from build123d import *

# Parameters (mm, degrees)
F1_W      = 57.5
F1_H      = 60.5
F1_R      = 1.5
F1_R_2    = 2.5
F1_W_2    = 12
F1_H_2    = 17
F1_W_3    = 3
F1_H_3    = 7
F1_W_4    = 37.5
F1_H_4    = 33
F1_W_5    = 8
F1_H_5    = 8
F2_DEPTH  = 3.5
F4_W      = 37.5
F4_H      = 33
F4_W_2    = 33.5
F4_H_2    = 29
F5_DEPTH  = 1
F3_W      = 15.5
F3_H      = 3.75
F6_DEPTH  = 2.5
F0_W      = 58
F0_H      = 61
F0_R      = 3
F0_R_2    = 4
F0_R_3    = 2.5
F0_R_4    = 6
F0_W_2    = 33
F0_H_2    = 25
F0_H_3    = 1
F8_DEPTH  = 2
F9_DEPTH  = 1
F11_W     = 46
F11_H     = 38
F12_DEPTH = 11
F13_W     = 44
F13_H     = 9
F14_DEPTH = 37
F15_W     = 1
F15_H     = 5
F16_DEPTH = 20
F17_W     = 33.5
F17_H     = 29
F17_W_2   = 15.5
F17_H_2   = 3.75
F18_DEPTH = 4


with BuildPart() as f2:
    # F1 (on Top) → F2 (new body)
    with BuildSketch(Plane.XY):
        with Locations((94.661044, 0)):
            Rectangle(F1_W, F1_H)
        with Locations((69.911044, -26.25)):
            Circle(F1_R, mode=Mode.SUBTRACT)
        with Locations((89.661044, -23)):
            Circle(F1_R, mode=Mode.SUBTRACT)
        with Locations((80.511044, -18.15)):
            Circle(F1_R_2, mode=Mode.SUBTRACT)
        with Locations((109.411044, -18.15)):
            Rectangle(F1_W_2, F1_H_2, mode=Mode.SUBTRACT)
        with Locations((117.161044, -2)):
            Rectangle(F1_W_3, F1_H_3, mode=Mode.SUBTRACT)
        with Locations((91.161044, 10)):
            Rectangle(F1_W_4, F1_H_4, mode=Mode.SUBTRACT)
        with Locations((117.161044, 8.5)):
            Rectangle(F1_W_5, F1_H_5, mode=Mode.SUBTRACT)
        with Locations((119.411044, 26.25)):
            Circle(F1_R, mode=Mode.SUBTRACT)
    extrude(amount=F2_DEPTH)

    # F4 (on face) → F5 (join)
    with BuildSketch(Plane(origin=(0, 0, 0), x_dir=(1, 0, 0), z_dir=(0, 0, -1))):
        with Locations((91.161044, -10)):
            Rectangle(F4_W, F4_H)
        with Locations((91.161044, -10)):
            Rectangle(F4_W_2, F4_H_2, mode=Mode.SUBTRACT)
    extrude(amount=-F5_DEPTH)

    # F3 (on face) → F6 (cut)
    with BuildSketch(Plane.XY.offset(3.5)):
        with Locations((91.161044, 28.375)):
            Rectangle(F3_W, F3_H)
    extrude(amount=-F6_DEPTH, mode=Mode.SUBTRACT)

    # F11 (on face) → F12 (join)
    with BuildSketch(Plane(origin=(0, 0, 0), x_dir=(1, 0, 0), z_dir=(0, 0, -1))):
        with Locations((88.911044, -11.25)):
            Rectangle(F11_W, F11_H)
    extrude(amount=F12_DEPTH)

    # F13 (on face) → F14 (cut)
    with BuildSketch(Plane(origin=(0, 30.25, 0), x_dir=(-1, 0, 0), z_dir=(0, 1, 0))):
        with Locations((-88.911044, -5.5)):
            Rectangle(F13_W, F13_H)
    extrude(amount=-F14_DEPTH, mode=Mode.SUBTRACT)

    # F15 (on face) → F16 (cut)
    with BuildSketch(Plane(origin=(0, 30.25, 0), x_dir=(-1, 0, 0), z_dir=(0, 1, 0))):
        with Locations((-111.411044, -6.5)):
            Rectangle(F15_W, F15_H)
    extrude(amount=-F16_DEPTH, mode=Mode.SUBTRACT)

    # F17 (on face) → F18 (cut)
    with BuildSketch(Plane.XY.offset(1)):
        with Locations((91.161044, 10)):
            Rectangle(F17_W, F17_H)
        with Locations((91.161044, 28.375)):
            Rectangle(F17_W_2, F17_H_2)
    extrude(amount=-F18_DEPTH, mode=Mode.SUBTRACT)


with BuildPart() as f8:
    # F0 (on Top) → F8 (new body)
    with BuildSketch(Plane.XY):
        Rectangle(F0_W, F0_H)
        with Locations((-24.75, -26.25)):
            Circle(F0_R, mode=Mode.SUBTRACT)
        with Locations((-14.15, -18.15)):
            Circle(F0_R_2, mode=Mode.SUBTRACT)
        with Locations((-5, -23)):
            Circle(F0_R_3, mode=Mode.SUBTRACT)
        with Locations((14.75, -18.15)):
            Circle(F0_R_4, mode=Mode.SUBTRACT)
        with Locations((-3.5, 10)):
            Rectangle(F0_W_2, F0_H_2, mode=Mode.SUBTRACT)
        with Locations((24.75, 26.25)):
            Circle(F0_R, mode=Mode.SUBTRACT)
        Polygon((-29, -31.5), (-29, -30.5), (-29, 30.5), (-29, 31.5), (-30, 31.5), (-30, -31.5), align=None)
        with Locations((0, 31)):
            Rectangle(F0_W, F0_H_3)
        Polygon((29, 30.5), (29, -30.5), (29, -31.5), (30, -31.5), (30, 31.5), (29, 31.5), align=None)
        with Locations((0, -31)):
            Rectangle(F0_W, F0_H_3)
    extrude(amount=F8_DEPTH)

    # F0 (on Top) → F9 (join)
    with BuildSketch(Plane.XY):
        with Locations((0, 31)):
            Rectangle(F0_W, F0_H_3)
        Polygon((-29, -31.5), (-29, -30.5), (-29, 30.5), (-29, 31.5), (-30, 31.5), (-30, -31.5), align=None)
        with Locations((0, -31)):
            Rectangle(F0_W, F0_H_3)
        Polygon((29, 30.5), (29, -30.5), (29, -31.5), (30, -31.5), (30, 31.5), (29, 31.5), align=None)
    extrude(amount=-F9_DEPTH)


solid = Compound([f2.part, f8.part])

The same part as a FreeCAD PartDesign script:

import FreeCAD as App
import Part
import Sketcher
Q = App.Units.Quantity

doc = App.newDocument("Part")
body = doc.addObject("PartDesign::Body", "Body")

# Sketch on XY plane
sketch1 = body.newObject("Sketcher::SketchObject", "Sketch")
sketch1.AttachmentSupport = (doc.getObject("XY_Plane"), [""])
sketch1.MapMode = "FlatFace"
sketch1.addGeometry([
    Part.LineSegment(App.Vector(65.9, 30.2, 0), App.Vector(65.9, -30.2, 0)),  # 0
    Part.LineSegment(App.Vector(65.9, -30.2, 0), App.Vector(123.4, -30.2, 0)),  # 1
    Part.LineSegment(App.Vector(123.4, -30.2, 0), App.Vector(123.4, 30.2, 0)),  # 2
    Part.LineSegment(App.Vector(123.4, 30.2, 0), App.Vector(65.9, 30.2, 0)),  # 3
    Part.Circle(App.Vector(69.9, -26.2, 0), App.Vector(0, 0, 1), 1.5),  # 4
    Part.Circle(App.Vector(80.5, -18.1, 0), App.Vector(0, 0, 1), 2.5),  # 5
    Part.Circle(App.Vector(89.7, -23, 0), App.Vector(0, 0, 1), 1.5),  # 6
    Part.LineSegment(App.Vector(115.4, -26.6, 0), App.Vector(103.4, -26.6, 0)),  # 7
    Part.LineSegment(App.Vector(103.4, -26.6, 0), App.Vector(103.4, -9.7, 0)),  # 8
    Part.LineSegment(App.Vector(103.4, -9.7, 0), App.Vector(115.4, -9.7, 0)),  # 9
    Part.LineSegment(App.Vector(115.4, -9.7, 0), App.Vector(115.4, -26.6, 0)),  # 10
    Part.LineSegment(App.Vector(118.7, -5.5, 0), App.Vector(115.7, -5.5, 0)),  # 11
    Part.LineSegment(App.Vector(115.7, -5.5, 0), App.Vector(115.7, 1.5, 0)),  # 12
    Part.LineSegment(App.Vector(115.7, 1.5, 0), App.Vector(118.7, 1.5, 0)),  # 13
    Part.LineSegment(App.Vector(118.7, 1.5, 0), App.Vector(118.7, -5.5, 0)),  # 14
    Part.LineSegment(App.Vector(109.9, -6.5, 0), App.Vector(72.4, -6.5, 0)),  # 15
    Part.LineSegment(App.Vector(72.4, -6.5, 0), App.Vector(72.4, 26.5, 0)),  # 16
    Part.LineSegment(App.Vector(72.4, 26.5, 0), App.Vector(109.9, 26.5, 0)),  # 17
    Part.LineSegment(App.Vector(109.9, 26.5, 0), App.Vector(109.9, -6.5, 0)),  # 18
    Part.LineSegment(App.Vector(121.2, 4.5, 0), App.Vector(113.2, 4.5, 0)),  # 19
    Part.LineSegment(App.Vector(113.2, 4.5, 0), App.Vector(113.2, 12.5, 0)),  # 20
    Part.LineSegment(App.Vector(113.2, 12.5, 0), App.Vector(121.2, 12.5, 0)),  # 21
    Part.LineSegment(App.Vector(121.2, 12.5, 0), App.Vector(121.2, 4.5, 0)),  # 22
    Part.Circle(App.Vector(119.4, 26.2, 0), App.Vector(0, 0, 1), 1.5),  # 23
], False)
sketch1.addConstraint([
    Sketcher.Constraint("Coincident", 0, 2, 1, 1),
    Sketcher.Constraint("Coincident", 1, 2, 2, 1),
    Sketcher.Constraint("Coincident", 2, 2, 3, 1),
    Sketcher.Constraint("Coincident", 3, 2, 0, 1),
    Sketcher.Constraint("Coincident", 7, 2, 8, 1),
    Sketcher.Constraint("Coincident", 8, 2, 9, 1),
    Sketcher.Constraint("Coincident", 9, 2, 10, 1),
    Sketcher.Constraint("Coincident", 10, 2, 7, 1),
    Sketcher.Constraint("Coincident", 11, 2, 12, 1),
    Sketcher.Constraint("Coincident", 12, 2, 13, 1),
    Sketcher.Constraint("Coincident", 13, 2, 14, 1),
    Sketcher.Constraint("Coincident", 14, 2, 11, 1),
    Sketcher.Constraint("Coincident", 15, 2, 16, 1),
    Sketcher.Constraint("Coincident", 16, 2, 17, 1),
    Sketcher.Constraint("Coincident", 17, 2, 18, 1),
    Sketcher.Constraint("Coincident", 18, 2, 15, 1),
    Sketcher.Constraint("Coincident", 19, 2, 20, 1),
    Sketcher.Constraint("Coincident", 20, 2, 21, 1),
    Sketcher.Constraint("Coincident", 21, 2, 22, 1),
    Sketcher.Constraint("Coincident", 22, 2, 19, 1),
    Sketcher.Constraint("Vertical", 0),
    Sketcher.Constraint("Horizontal", 1),
    Sketcher.Constraint("Vertical", 2),
    Sketcher.Constraint("Horizontal", 3),
    Sketcher.Constraint("Horizontal", 7),
    Sketcher.Constraint("Vertical", 8),
    Sketcher.Constraint("Horizontal", 9),
    Sketcher.Constraint("Vertical", 10),
    Sketcher.Constraint("Horizontal", 11),
    Sketcher.Constraint("Vertical", 12),
    Sketcher.Constraint("Horizontal", 13),
    Sketcher.Constraint("Vertical", 14),
    Sketcher.Constraint("Horizontal", 15),
    Sketcher.Constraint("Vertical", 16),
    Sketcher.Constraint("Horizontal", 17),
    Sketcher.Constraint("Vertical", 18),
    Sketcher.Constraint("Horizontal", 19),
    Sketcher.Constraint("Vertical", 20),
    Sketcher.Constraint("Horizontal", 21),
    Sketcher.Constraint("Vertical", 22),
    Sketcher.Constraint("Equal", 4, 6),
    Sketcher.Constraint("Equal", 6, 23),
    Sketcher.Constraint("Equal", 21, 20),
    Sketcher.Constraint("Diameter", 4, Q("3 mm")),
    Sketcher.Constraint("Diameter", 5, Q("5 mm")),
    Sketcher.Constraint("DistanceX", 7, 2, 7, 1, Q("12 mm")),
    Sketcher.Constraint("DistanceX", 11, 2, 11, 1, Q("3 mm")),
    Sketcher.Constraint("DistanceX", 19, 2, 19, 1, Q("8 mm")),
    Sketcher.Constraint("DistanceY", 8, 1, 8, 2, Q("17 mm")),
    Sketcher.Constraint("DistanceY", 12, 1, 12, 2, Q("7 mm")),
    Sketcher.Constraint("DistanceY", 16, 1, 16, 2, Q("33 mm")),
    Sketcher.Constraint("DistanceX", 1, 1, 1, 2, Q("57.5 mm")),
    Sketcher.Constraint("DistanceX", 15, 2, 15, 1, Q("37.5 mm")),
    Sketcher.Constraint("DistanceY", 0, 2, 0, 1, Q("60.5 mm")),
    Sketcher.Constraint("DistanceY", 6, 3, -1, 1, Q("23 mm")),
    Sketcher.Constraint("DistanceX", 0, 2, 4, 3, Q("4 mm")),
    Sketcher.Constraint("DistanceY", 0, 2, 4, 3, Q("4 mm")),
    Sketcher.Constraint("DistanceX", 23, 3, 1, 2, Q("4 mm")),
    Sketcher.Constraint("DistanceY", 23, 3, 2, 2, Q("4 mm")),
    Sketcher.Constraint("DistanceX", 7, 2, 1, 2, Q("20 mm")),
    Sketcher.Constraint("DistanceX", 15, 2, 8, 2, Q("31 mm")),
    Sketcher.Constraint("DistanceY", 12, 2, 17, 2, Q("25 mm")),
    Sketcher.Constraint("DistanceY", 12, 2, 19, 2, Q("3 mm")),
    Sketcher.Constraint("DistanceY", 11, 2, -1, 1, Q("5.5 mm")),
    Sketcher.Constraint("DistanceX", 4, 3, 5, 3, Q("10.6 mm")),
    Sketcher.Constraint("DistanceY", 4, 3, 5, 3, Q("8.1 mm")),
    Sketcher.Constraint("DistanceY", 1, 2, 7, 2, Q("3.6 mm")),
    Sketcher.Constraint("DistanceX", 19, 2, 12, 2, Q("2.5 mm")),
    Sketcher.Constraint("DistanceY", 4, 3, -1, 1, Q("26.25 mm")),
    Sketcher.Constraint("DistanceX", 5, 3, 6, 3, Q("9.15 mm")),
    Sketcher.Constraint("DistanceX", 9, 2, 11, 2, Q("0.25 mm")),
    Sketcher.Constraint("DistanceX", -1, 1, 4, 3, Q("69.911044 mm")),
])
pad1 = body.newObject("PartDesign::Pad", "Pad")
pad1.Profile = sketch1
pad1.Length = 3.5

# Sketch on XY plane
sketch2 = body.newObject("Sketcher::SketchObject", "Sketch001")
sketch2.AttachmentSupport = (doc.getObject("XY_Plane"), [""])
sketch2.MapMode = "FlatFace"
sketch2.addGeometry([
    Part.LineSegment(App.Vector(72, -6, 0), App.Vector(72, 26, 0)),  # 0
    Part.LineSegment(App.Vector(72, 26, 0), App.Vector(110, 26, 0)),  # 1
    Part.LineSegment(App.Vector(110, 26, 0), App.Vector(110, -6, 0)),  # 2
    Part.LineSegment(App.Vector(110, -6, 0), App.Vector(72, -6, 0)),  # 3
    Part.LineSegment(App.Vector(108, 24, 0), App.Vector(74, 24, 0)),  # 4
    Part.LineSegment(App.Vector(74, 24, 0), App.Vector(74, -4, 0)),  # 5
    Part.LineSegment(App.Vector(74, -4, 0), App.Vector(108, -4, 0)),  # 6
    Part.LineSegment(App.Vector(108, -4, 0), App.Vector(108, 24, 0)),  # 7
], False)
sketch2.addConstraint([
    Sketcher.Constraint("Coincident", 0, 2, 1, 1),
    Sketcher.Constraint("Coincident", 1, 2, 2, 1),
    Sketcher.Constraint("Coincident", 2, 2, 3, 1),
    Sketcher.Constraint("Coincident", 3, 2, 0, 1),
    Sketcher.Constraint("Coincident", 4, 2, 5, 1),
    Sketcher.Constraint("Coincident", 5, 2, 6, 1),
    Sketcher.Constraint("Coincident", 6, 2, 7, 1),
    Sketcher.Constraint("Coincident", 7, 2, 4, 1),
    Sketcher.Constraint("Vertical", 0),
    Sketcher.Constraint("Horizontal", 1),
    Sketcher.Constraint("Vertical", 2),
    Sketcher.Constraint("Horizontal", 3),
    Sketcher.Constraint("Horizontal", 4),
    Sketcher.Constraint("Vertical", 5),
    Sketcher.Constraint("Horizontal", 6),
    Sketcher.Constraint("Vertical", 7),
    Sketcher.Constraint("DistanceY", 0, 1, 0, 2, Q("33 mm")),
    Sketcher.Constraint("DistanceY", 5, 2, 5, 1, Q("29 mm")),
    Sketcher.Constraint("DistanceX", 1, 1, 1, 2, Q("37.5 mm")),
    Sketcher.Constraint("DistanceX", 4, 2, 4, 1, Q("33.5 mm")),
    Sketcher.Constraint("DistanceX", 0, 2, 4, 2, Q("2 mm")),
    Sketcher.Constraint("DistanceY", 4, 2, 0, 2, Q("2 mm")),
    Sketcher.Constraint("DistanceY", -1, 1, 0, 2, Q("26.5 mm")),
    Sketcher.Constraint("DistanceX", -1, 1, 0, 2, Q("72.411044 mm")),
])
pad2 = body.newObject("PartDesign::Pad", "Pad001")
pad2.Profile = sketch2
pad2.Length = 1

# Sketch on XY plane
sketch3 = body.newObject("Sketcher::SketchObject", "Sketch002")
sketch3.AttachmentSupport = (doc.getObject("XY_Plane"), [""])
sketch3.MapMode = "FlatFace"
sketch3.AttachmentOffset = App.Placement(App.Vector(0, 0, 3.5), App.Rotation())
sketch3.addGeometry([
    Part.LineSegment(App.Vector(83.4, 30.2, 0), App.Vector(83.4, 26.5, 0)),
    Part.LineSegment(App.Vector(83.4, 26.5, 0), App.Vector(98.9, 26.5, 0)),
    Part.LineSegment(App.Vector(98.9, 26.5, 0), App.Vector(98.9, 30.2, 0)),
    Part.LineSegment(App.Vector(98.9, 30.2, 0), App.Vector(83.4, 30.2, 0)),
], False)
sketch3.addConstraint([
    Sketcher.Constraint("Coincident", 0, 2, 1, 1),
    Sketcher.Constraint("Coincident", 1, 2, 2, 1),
    Sketcher.Constraint("Coincident", 2, 2, 3, 1),
    Sketcher.Constraint("Coincident", 3, 2, 0, 1),
    Sketcher.Constraint("Vertical", 0),
    Sketcher.Constraint("Horizontal", 1),
    Sketcher.Constraint("Vertical", 2),
    Sketcher.Constraint("Horizontal", 3),
    Sketcher.Constraint("DistanceX", 1, 1, 1, 2, Q("15.5 mm")),
    Sketcher.Constraint("DistanceY", 0, 2, 0, 1, Q("3.75 mm")),
    Sketcher.Constraint("DistanceY", -1, 1, 0, 2, Q("26.5 mm")),
    Sketcher.Constraint("DistanceX", -1, 1, 0, 2, Q("83.411044 mm")),
])
pocket1 = body.newObject("PartDesign::Pocket", "Pocket")
pocket1.Profile = sketch3
pocket1.Length = 2.5

# Sketch on XY plane
sketch4 = body.newObject("Sketcher::SketchObject", "Sketch003")
sketch4.AttachmentSupport = (doc.getObject("XY_Plane"), [""])
sketch4.MapMode = "FlatFace"
sketch4.addGeometry([
    Part.LineSegment(App.Vector(66, -8, 0), App.Vector(66, 30, 0)),
    Part.LineSegment(App.Vector(66, 30, 0), App.Vector(112, 30, 0)),
    Part.LineSegment(App.Vector(112, 30, 0), App.Vector(112, -8, 0)),
    Part.LineSegment(App.Vector(112, -8, 0), App.Vector(66, -8, 0)),
], False)
sketch4.addConstraint([
    Sketcher.Constraint("Coincident", 0, 2, 1, 1),
    Sketcher.Constraint("Coincident", 1, 2, 2, 1),
    Sketcher.Constraint("Coincident", 2, 2, 3, 1),
    Sketcher.Constraint("Coincident", 3, 2, 0, 1),
    Sketcher.Constraint("Vertical", 0),
    Sketcher.Constraint("Horizontal", 1),
    Sketcher.Constraint("Vertical", 2),
    Sketcher.Constraint("Horizontal", 3),
    Sketcher.Constraint("DistanceX", 1, 1, 1, 2, Q("46 mm")),
    Sketcher.Constraint("DistanceY", 0, 1, 0, 2, Q("38 mm")),
    Sketcher.Constraint("DistanceY", -1, 1, 0, 2, Q("30.25 mm")),
    Sketcher.Constraint("DistanceX", -1, 1, 0, 2, Q("65.911044 mm")),
])
pad3 = body.newObject("PartDesign::Pad", "Pad002")
pad3.Profile = sketch4
pad3.Length = 11
pad3.Reversed = True

# Sketch on XZ plane
sketch5 = body.newObject("Sketcher::SketchObject", "Sketch004")
sketch5.AttachmentSupport = (doc.getObject("XZ_Plane"), [""])
sketch5.MapMode = "FlatFace"
sketch5.AttachmentOffset = App.Placement(App.Vector(0, 0, -30.25), App.Rotation())
sketch5.addGeometry([
    Part.LineSegment(App.Vector(111, -1, 0), App.Vector(111, -10, 0)),
    Part.LineSegment(App.Vector(111, -10, 0), App.Vector(67, -10, 0)),
    Part.LineSegment(App.Vector(67, -10, 0), App.Vector(67, -1, 0)),
    Part.LineSegment(App.Vector(67, -1, 0), App.Vector(111, -1, 0)),
], False)
sketch5.addConstraint([
    Sketcher.Constraint("Coincident", 0, 2, 1, 1),
    Sketcher.Constraint("Coincident", 1, 2, 2, 1),
    Sketcher.Constraint("Coincident", 2, 2, 3, 1),
    Sketcher.Constraint("Coincident", 3, 2, 0, 1),
    Sketcher.Constraint("Vertical", 0),
    Sketcher.Constraint("Horizontal", 1),
    Sketcher.Constraint("Vertical", 2),
    Sketcher.Constraint("Horizontal", 3),
    Sketcher.Constraint("DistanceX", 1, 2, 1, 1, Q("44 mm")),
    Sketcher.Constraint("DistanceY", 0, 2, 0, 1, Q("9 mm")),
    Sketcher.Constraint("DistanceY", 0, 2, -1, 1, Q("10 mm")),
    Sketcher.Constraint("DistanceX", -1, 1, 0, 2, Q("110.911044 mm")),
])
pocket2 = body.newObject("PartDesign::Pocket", "Pocket001")
pocket2.Profile = sketch5
pocket2.Length = 37
pocket2.Reversed = True

# Sketch on XZ plane
sketch6 = body.newObject("Sketcher::SketchObject", "Sketch005")
sketch6.AttachmentSupport = (doc.getObject("XZ_Plane"), [""])
sketch6.MapMode = "FlatFace"
sketch6.AttachmentOffset = App.Placement(App.Vector(0, 0, -30.25), App.Rotation())
sketch6.addGeometry([
    Part.LineSegment(App.Vector(111.9, -4, 0), App.Vector(111.9, -9, 0)),
    Part.LineSegment(App.Vector(111.9, -9, 0), App.Vector(110.9, -9, 0)),
    Part.LineSegment(App.Vector(110.9, -9, 0), App.Vector(110.9, -4, 0)),
    Part.LineSegment(App.Vector(110.9, -4, 0), App.Vector(111.9, -4, 0)),
], False)
sketch6.addConstraint([
    Sketcher.Constraint("Coincident", 0, 2, 1, 1),
    Sketcher.Constraint("Coincident", 1, 2, 2, 1),
    Sketcher.Constraint("Coincident", 2, 2, 3, 1),
    Sketcher.Constraint("Coincident", 3, 2, 0, 1),
    Sketcher.Constraint("Vertical", 0),
    Sketcher.Constraint("Horizontal", 1),
    Sketcher.Constraint("Vertical", 2),
    Sketcher.Constraint("Horizontal", 3),
    Sketcher.Constraint("DistanceX", 1, 2, 1, 1, Q("1 mm")),
    Sketcher.Constraint("DistanceY", 0, 2, 0, 1, Q("5 mm")),
    Sketcher.Constraint("DistanceY", 0, 2, -1, 1, Q("9 mm")),
    Sketcher.Constraint("DistanceX", -1, 1, 0, 2, Q("111.911044 mm")),
])
pocket3 = body.newObject("PartDesign::Pocket", "Pocket002")
pocket3.Profile = sketch6
pocket3.Length = 20
pocket3.Reversed = True

# Sketch on XY plane
sketch7 = body.newObject("Sketcher::SketchObject", "Sketch006")
sketch7.AttachmentSupport = (doc.getObject("XY_Plane"), [""])
sketch7.MapMode = "FlatFace"
sketch7.AttachmentOffset = App.Placement(App.Vector(0, 0, 1), App.Rotation())
sketch7.addGeometry([
    Part.LineSegment(App.Vector(74.4, 24.5, 0), App.Vector(74.4, -4.5, 0)),  # 0
    Part.LineSegment(App.Vector(74.4, -4.5, 0), App.Vector(107.9, -4.5, 0)),  # 1
    Part.LineSegment(App.Vector(107.9, -4.5, 0), App.Vector(107.9, 24.5, 0)),  # 2
    Part.LineSegment(App.Vector(107.9, 24.5, 0), App.Vector(74.4, 24.5, 0)),  # 3
    Part.LineSegment(App.Vector(83.4, 30.2, 0), App.Vector(83.4, 26.5, 0)),  # 4
    Part.LineSegment(App.Vector(83.4, 26.5, 0), App.Vector(98.9, 26.5, 0)),  # 5
    Part.LineSegment(App.Vector(98.9, 26.5, 0), App.Vector(98.9, 30.2, 0)),  # 6
    Part.LineSegment(App.Vector(98.9, 30.2, 0), App.Vector(83.4, 30.2, 0)),  # 7
], False)
sketch7.addConstraint([
    Sketcher.Constraint("Coincident", 0, 2, 1, 1),
    Sketcher.Constraint("Coincident", 1, 2, 2, 1),
    Sketcher.Constraint("Coincident", 2, 2, 3, 1),
    Sketcher.Constraint("Coincident", 3, 2, 0, 1),
    Sketcher.Constraint("Coincident", 4, 2, 5, 1),
    Sketcher.Constraint("Coincident", 5, 2, 6, 1),
    Sketcher.Constraint("Coincident", 6, 2, 7, 1),
    Sketcher.Constraint("Coincident", 7, 2, 4, 1),
    Sketcher.Constraint("Vertical", 0),
    Sketcher.Constraint("Horizontal", 1),
    Sketcher.Constraint("Vertical", 2),
    Sketcher.Constraint("Horizontal", 3),
    Sketcher.Constraint("Vertical", 4),
    Sketcher.Constraint("Horizontal", 5),
    Sketcher.Constraint("Vertical", 6),
    Sketcher.Constraint("Horizontal", 7),
    Sketcher.Constraint("DistanceY", 0, 2, 0, 1, Q("29 mm")),
    Sketcher.Constraint("DistanceX", 1, 1, 1, 2, Q("33.5 mm")),
    Sketcher.Constraint("DistanceX", 5, 1, 5, 2, Q("15.5 mm")),
    Sketcher.Constraint("DistanceX", 3, 2, 4, 2, Q("9 mm")),
    Sketcher.Constraint("DistanceY", 3, 2, 4, 2, Q("2 mm")),
    Sketcher.Constraint("DistanceY", 4, 2, 4, 1, Q("3.75 mm")),
    Sketcher.Constraint("DistanceY", 0, 2, -1, 1, Q("4.5 mm")),
    Sketcher.Constraint("DistanceX", -1, 1, 0, 2, Q("74.411044 mm")),
])
pocket4 = body.newObject("PartDesign::Pocket", "Pocket003")
pocket4.Profile = sketch7
pocket4.Length = 4
body2 = doc.addObject("PartDesign::Body", "Body001")

# Sketch on XY plane
sketch8 = body2.newObject("Sketcher::SketchObject", "Sketch007")
sketch8.AttachmentSupport = (doc.getObject("XY_Plane001"), [""])
sketch8.MapMode = "FlatFace"
sketch8.addGeometry([
    Part.LineSegment(App.Vector(30, -31.5, 0), App.Vector(30, 31.5, 0)),  # 0
    Part.LineSegment(App.Vector(30, 31.5, 0), App.Vector(-30, 31.5, 0)),  # 1
    Part.LineSegment(App.Vector(-30, 31.5, 0), App.Vector(-30, -31.5, 0)),  # 2
    Part.LineSegment(App.Vector(-30, -31.5, 0), App.Vector(30, -31.5, 0)),  # 3
    Part.Circle(App.Vector(-24.8, -26.2, 0), App.Vector(0, 0, 1), 3),  # 4
    Part.Circle(App.Vector(-14.2, -18.1, 0), App.Vector(0, 0, 1), 4),  # 5
    Part.Circle(App.Vector(-5, -23, 0), App.Vector(0, 0, 1), 2.5),  # 6
    Part.Circle(App.Vector(14.8, -18.1, 0), App.Vector(0, 0, 1), 6),  # 7
    Part.LineSegment(App.Vector(13, -2.5, 0), App.Vector(-20, -2.5, 0)),  # 8
    Part.LineSegment(App.Vector(-20, -2.5, 0), App.Vector(-20, 22.5, 0)),  # 9
    Part.LineSegment(App.Vector(-20, 22.5, 0), App.Vector(13, 22.5, 0)),  # 10
    Part.LineSegment(App.Vector(13, 22.5, 0), App.Vector(13, -2.5, 0)),  # 11
    Part.Circle(App.Vector(24.8, 26.2, 0), App.Vector(0, 0, 1), 3),  # 12
], False)
sketch8.addConstraint([
    Sketcher.Constraint("Coincident", 0, 2, 1, 1),
    Sketcher.Constraint("Coincident", 1, 2, 2, 1),
    Sketcher.Constraint("Coincident", 2, 2, 3, 1),
    Sketcher.Constraint("Coincident", 3, 2, 0, 1),
    Sketcher.Constraint("Coincident", 8, 2, 9, 1),
    Sketcher.Constraint("Coincident", 9, 2, 10, 1),
    Sketcher.Constraint("Coincident", 10, 2, 11, 1),
    Sketcher.Constraint("Coincident", 11, 2, 8, 1),
    Sketcher.Constraint("Vertical", 0),
    Sketcher.Constraint("Horizontal", 1),
    Sketcher.Constraint("Vertical", 2),
    Sketcher.Constraint("Horizontal", 3),
    Sketcher.Constraint("Horizontal", 8),
    Sketcher.Constraint("Vertical", 9),
    Sketcher.Constraint("Horizontal", 10),
    Sketcher.Constraint("Vertical", 11),
    Sketcher.Constraint("Equal", 4, 12),
    Sketcher.Constraint("Symmetric", 4, 3, 12, 3, -1, 1),
    Sketcher.Constraint("Symmetric", 0, 2, 2, 2, -1, 1),
    Sketcher.Constraint("Horizontal", 5, 3, 7, 3),
    Sketcher.Constraint("Diameter", 4, Q("6 mm")),
    Sketcher.Constraint("Diameter", 5, Q("8 mm")),
    Sketcher.Constraint("Diameter", 6, Q("5 mm")),
    Sketcher.Constraint("Diameter", 7, Q("12 mm")),
    Sketcher.Constraint("DistanceX", 1, 2, 1, 1, Q("60 mm")),
    Sketcher.Constraint("DistanceX", 8, 2, 8, 1, Q("33 mm")),
    Sketcher.Constraint("DistanceY", 0, 1, 0, 2, Q("63 mm")),
    Sketcher.Constraint("DistanceY", 9, 1, 9, 2, Q("25 mm")),
    Sketcher.Constraint("DistanceX", 6, 3, -1, 1, Q("5 mm")),
    Sketcher.Constraint("DistanceY", 6, 3, -1, 1, Q("23 mm")),
    Sketcher.Constraint("DistanceX", 8, 2, -1, 1, Q("20 mm")),
    Sketcher.Constraint("DistanceX", 7, 3, 12, 3, Q("10 mm")),
    Sketcher.Constraint("DistanceY", 2, 2, 8, 2, Q("29 mm")),
    Sketcher.Constraint("DistanceX", 4, 3, 5, 3, Q("10.6 mm")),
    Sketcher.Constraint("DistanceY", 4, 3, 5, 3, Q("8.1 mm")),
    Sketcher.Constraint("DistanceX", 5, 3, 7, 3, Q("28.9 mm")),
    Sketcher.Constraint("DistanceY", 7, 3, 12, 3, Q("44.4 mm")),
])
pad4 = body2.newObject("PartDesign::Pad", "Pad003")
pad4.Profile = sketch8
pad4.Length = 2

# Sketch on XY plane
sketch9 = body2.newObject("Sketcher::SketchObject", "Sketch008")
sketch9.AttachmentSupport = (doc.getObject("XY_Plane001"), [""])
sketch9.MapMode = "FlatFace"
sketch9.addGeometry([
    Part.LineSegment(App.Vector(-30, 32, 0), App.Vector(-30, -32, 0)),  # 0
    Part.LineSegment(App.Vector(-30, -32, 0), App.Vector(30, -32, 0)),  # 1
    Part.LineSegment(App.Vector(30, -32, 0), App.Vector(30, 32, 0)),  # 2
    Part.LineSegment(App.Vector(30, 32, 0), App.Vector(-30, 32, 0)),  # 3
    Part.LineSegment(App.Vector(-29, 30, 0), App.Vector(29, 30, 0)),  # 4
    Part.LineSegment(App.Vector(29, 30, 0), App.Vector(29, -30, 0)),  # 5
    Part.LineSegment(App.Vector(29, -30, 0), App.Vector(-29, -30, 0)),  # 6
    Part.LineSegment(App.Vector(-29, -30, 0), App.Vector(-29, 30, 0)),  # 7
], False)
sketch9.addConstraint([
    Sketcher.Constraint("Coincident", 0, 2, 1, 1),
    Sketcher.Constraint("Coincident", 1, 2, 2, 1),
    Sketcher.Constraint("Coincident", 2, 2, 3, 1),
    Sketcher.Constraint("Coincident", 3, 2, 0, 1),
    Sketcher.Constraint("Coincident", 4, 2, 5, 1),
    Sketcher.Constraint("Coincident", 5, 2, 6, 1),
    Sketcher.Constraint("Coincident", 6, 2, 7, 1),
    Sketcher.Constraint("Coincident", 7, 2, 4, 1),
    Sketcher.Constraint("Vertical", 0),
    Sketcher.Constraint("Horizontal", 1),
    Sketcher.Constraint("Vertical", 2),
    Sketcher.Constraint("Horizontal", 3),
    Sketcher.Constraint("Horizontal", 4),
    Sketcher.Constraint("Vertical", 5),
    Sketcher.Constraint("Horizontal", 6),
    Sketcher.Constraint("Vertical", 7),
    Sketcher.Constraint("Symmetric", 0, 2, 2, 2, -1, 1),
    Sketcher.Constraint("Symmetric", 4, 2, 6, 2, -1, 1),
    Sketcher.Constraint("DistanceX", 1, 1, 1, 2, Q("60 mm")),
    Sketcher.Constraint("DistanceX", 4, 1, 4, 2, Q("58 mm")),
    Sketcher.Constraint("DistanceY", 0, 2, 0, 1, Q("63 mm")),
    Sketcher.Constraint("DistanceY", 5, 2, 5, 1, Q("61 mm")),
])
pad5 = body2.newObject("PartDesign::Pad", "Pad004")
pad5.Profile = sketch9
pad5.Length = 1
pad5.Reversed = True

doc.recompute()
